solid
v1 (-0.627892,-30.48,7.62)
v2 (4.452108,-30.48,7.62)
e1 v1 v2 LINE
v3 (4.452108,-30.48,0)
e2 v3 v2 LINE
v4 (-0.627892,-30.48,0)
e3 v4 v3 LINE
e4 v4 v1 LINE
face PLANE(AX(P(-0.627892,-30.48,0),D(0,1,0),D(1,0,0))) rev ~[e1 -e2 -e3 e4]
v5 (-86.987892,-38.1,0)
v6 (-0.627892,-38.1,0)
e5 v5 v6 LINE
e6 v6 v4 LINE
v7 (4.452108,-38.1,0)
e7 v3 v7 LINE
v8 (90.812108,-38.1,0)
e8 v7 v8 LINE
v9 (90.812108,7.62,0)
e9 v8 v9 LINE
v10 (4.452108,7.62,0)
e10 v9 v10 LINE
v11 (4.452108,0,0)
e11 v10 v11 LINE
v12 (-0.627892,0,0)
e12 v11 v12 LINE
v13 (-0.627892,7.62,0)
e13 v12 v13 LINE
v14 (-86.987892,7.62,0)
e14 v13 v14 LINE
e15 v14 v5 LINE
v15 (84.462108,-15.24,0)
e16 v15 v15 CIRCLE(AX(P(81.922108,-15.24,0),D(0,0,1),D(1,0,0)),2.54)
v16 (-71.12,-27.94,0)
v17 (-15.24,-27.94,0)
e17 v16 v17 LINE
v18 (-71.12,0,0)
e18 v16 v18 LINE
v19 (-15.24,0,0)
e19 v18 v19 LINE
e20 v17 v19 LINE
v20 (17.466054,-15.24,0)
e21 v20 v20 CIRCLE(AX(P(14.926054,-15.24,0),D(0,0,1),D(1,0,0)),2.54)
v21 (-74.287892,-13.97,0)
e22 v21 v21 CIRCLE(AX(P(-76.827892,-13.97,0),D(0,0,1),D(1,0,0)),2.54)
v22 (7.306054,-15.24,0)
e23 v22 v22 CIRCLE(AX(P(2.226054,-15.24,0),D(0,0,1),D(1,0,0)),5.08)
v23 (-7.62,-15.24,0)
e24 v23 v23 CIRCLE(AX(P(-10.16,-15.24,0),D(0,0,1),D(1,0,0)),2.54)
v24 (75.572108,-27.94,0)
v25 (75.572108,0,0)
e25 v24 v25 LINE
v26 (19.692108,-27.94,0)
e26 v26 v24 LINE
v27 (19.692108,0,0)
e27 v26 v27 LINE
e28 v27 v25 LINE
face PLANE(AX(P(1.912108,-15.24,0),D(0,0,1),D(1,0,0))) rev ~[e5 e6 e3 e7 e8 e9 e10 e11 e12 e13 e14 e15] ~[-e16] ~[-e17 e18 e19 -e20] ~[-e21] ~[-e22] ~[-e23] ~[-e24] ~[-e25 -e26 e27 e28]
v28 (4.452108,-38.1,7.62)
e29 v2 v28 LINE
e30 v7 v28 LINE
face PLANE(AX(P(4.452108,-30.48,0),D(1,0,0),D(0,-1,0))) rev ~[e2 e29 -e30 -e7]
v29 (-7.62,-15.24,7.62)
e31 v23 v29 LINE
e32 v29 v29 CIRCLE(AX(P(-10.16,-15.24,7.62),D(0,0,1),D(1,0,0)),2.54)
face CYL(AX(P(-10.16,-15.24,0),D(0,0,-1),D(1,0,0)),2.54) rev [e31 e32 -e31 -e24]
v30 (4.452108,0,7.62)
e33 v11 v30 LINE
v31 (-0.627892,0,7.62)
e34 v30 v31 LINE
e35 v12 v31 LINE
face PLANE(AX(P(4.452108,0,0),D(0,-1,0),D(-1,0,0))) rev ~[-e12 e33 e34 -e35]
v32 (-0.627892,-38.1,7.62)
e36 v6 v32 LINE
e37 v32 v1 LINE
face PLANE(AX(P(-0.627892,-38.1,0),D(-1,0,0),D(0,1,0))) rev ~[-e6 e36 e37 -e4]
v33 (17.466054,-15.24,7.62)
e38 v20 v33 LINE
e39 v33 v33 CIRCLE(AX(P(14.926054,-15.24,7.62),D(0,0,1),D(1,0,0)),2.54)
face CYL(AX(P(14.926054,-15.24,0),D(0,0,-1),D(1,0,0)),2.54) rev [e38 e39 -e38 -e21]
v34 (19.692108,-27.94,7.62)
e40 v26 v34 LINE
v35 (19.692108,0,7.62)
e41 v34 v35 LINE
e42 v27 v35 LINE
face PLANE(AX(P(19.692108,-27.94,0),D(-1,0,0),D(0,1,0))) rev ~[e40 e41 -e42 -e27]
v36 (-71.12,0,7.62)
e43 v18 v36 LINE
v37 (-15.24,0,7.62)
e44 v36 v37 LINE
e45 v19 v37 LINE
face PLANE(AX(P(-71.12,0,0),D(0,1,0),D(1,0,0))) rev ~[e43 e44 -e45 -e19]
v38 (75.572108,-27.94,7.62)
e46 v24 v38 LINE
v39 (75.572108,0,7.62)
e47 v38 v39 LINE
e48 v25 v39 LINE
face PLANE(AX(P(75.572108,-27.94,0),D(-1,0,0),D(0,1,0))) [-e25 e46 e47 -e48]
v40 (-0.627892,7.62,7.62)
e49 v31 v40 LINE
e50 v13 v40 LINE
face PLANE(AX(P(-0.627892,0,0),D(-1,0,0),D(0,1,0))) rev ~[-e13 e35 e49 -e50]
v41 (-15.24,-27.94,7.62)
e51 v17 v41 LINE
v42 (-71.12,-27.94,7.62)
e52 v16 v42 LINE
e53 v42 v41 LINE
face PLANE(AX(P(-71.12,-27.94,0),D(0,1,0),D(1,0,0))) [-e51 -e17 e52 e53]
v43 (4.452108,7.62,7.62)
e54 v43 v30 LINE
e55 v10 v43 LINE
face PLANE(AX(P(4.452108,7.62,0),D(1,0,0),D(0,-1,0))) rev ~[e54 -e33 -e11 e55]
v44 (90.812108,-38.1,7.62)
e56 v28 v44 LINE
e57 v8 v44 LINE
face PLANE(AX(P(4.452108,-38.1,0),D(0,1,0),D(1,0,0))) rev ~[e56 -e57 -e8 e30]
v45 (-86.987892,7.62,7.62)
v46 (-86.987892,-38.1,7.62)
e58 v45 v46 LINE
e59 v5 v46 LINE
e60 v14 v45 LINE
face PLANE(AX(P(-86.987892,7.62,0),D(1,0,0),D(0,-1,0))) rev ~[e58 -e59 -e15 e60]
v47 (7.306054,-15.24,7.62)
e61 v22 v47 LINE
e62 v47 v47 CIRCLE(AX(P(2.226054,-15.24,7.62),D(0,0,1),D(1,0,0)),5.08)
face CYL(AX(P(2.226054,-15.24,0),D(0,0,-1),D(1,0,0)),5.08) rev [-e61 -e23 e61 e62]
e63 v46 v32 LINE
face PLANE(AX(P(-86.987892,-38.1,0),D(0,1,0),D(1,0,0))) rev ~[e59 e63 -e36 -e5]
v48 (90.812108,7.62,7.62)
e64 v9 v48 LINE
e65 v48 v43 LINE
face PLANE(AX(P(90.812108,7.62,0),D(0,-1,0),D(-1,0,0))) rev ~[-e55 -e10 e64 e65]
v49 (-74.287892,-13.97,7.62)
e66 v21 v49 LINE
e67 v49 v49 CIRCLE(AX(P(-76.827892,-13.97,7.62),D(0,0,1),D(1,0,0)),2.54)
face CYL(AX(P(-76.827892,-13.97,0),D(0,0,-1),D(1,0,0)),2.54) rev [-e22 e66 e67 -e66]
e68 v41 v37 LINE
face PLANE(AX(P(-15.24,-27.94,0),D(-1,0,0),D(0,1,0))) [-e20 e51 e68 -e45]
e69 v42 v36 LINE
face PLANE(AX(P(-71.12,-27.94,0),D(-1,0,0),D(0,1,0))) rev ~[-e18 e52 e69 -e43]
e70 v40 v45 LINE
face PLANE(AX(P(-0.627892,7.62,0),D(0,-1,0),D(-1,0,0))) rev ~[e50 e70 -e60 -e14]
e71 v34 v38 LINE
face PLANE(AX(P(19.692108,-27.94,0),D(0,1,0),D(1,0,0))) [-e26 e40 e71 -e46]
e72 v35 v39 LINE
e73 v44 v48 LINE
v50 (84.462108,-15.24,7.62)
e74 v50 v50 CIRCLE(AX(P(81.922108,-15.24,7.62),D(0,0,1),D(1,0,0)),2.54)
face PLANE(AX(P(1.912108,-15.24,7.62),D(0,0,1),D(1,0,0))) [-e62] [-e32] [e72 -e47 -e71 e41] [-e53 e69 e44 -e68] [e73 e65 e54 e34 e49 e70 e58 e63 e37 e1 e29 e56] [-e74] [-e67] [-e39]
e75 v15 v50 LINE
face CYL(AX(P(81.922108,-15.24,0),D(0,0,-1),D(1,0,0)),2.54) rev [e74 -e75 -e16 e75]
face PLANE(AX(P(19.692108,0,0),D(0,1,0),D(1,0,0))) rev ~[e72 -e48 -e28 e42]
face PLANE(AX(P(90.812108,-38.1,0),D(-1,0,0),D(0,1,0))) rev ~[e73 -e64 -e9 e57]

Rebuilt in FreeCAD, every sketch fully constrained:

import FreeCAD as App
import Part
import Sketcher

V = App.Vector
Q = App.Units.Quantity


def add_polygon(sketch, points):
    """Adds a closed chain of lines whose ends are joined by coincident constraints."""
    first, n = sketch.GeometryCount, len(points)
    for a, b in zip(points, points[1:] + points[:1]):
        sketch.addGeometry(Part.LineSegment(App.Vector(*a, 0), App.Vector(*b, 0)), False)
    for i in range(n):
        sketch.addConstraint(Sketcher.Constraint("Coincident", first + i, 2, first + (i + 1) % n, 1))

doc = App.newDocument("Part")
params = doc.addObject("Spreadsheet::Sheet", "Params")
for row, (alias, value) in enumerate([
    ("sketch1_diameter", "0.2 in"),
    ("sketch1_diameter2", "0.4 in"),
    ("sketch1_width", "3.4 in"),
    ("sketch1_width2", "0.2 in"),
    ("sketch1_width3", "2.2 in"),
    ("pad1_length", "0.3 in"),
], start=1):
    params.set(f"A{row}", alias)
    params.set(f"B{row}", "=" + value)
    params.setAlias(f"B{row}", alias)

body = doc.addObject("PartDesign::Body", "Body")

# Sketch on XY plane
sketch1 = body.newObject("Sketcher::SketchObject", "Sketch")
sketch1.AttachmentSupport = (doc.getObject("XY_Plane"), [""])
sketch1.MapMode = "FlatFace"
add_polygon(sketch1, [(-0.627892, 7.62), (-86.987892, 7.62), (-86.987892, -38.1), (-0.627892, -38.1), (-0.627892, -30.48), (4.452108, -30.48), (4.452108, -38.1), (90.812108, -38.1), (90.812108, 7.62), (4.452108, 7.62), (4.452108, 0), (-0.627892, 0)])  # lines 0-11
sketch1.addGeometry(Part.Circle(V(-76.827892, -13.97, 0), V(0, 0, 1), 2.54), False)  # 12
add_polygon(sketch1, [(-15.24, -27.94), (-71.12, -27.94), (-71.12, 0), (-15.24, 0)])  # lines 13-16
sketch1.addGeometry(Part.Circle(V(-10.16, -15.24, 0), V(0, 0, 1), 2.54), False)  # 17
sketch1.addGeometry(Part.Circle(V(2.226054, -15.24, 0), V(0, 0, 1), 5.08), False)  # 18
sketch1.addGeometry(Part.Circle(V(14.926054, -15.24, 0), V(0, 0, 1), 2.54), False)  # 19
add_polygon(sketch1, [(75.572108, -27.94), (19.692108, -27.94), (19.692108, 0), (75.572108, 0)])  # lines 20-23
sketch1.addGeometry(Part.Circle(V(81.922108, -15.24, 0), V(0, 0, 1), 2.54), False)  # 24
sketch1.addConstraint(Sketcher.Constraint("Horizontal", 0))
sketch1.addConstraint(Sketcher.Constraint("Vertical", 1))
sketch1.addConstraint(Sketcher.Constraint("Horizontal", 2))
sketch1.addConstraint(Sketcher.Constraint("Vertical", 3))
sketch1.addConstraint(Sketcher.Constraint("Horizontal", 4))
sketch1.addConstraint(Sketcher.Constraint("Vertical", 5))
sketch1.addConstraint(Sketcher.Constraint("Horizontal", 6))
sketch1.addConstraint(Sketcher.Constraint("Vertical", 7))
sketch1.addConstraint(Sketcher.Constraint("Horizontal", 8))
sketch1.addConstraint(Sketcher.Constraint("Vertical", 9))
sketch1.addConstraint(Sketcher.Constraint("Horizontal", 10))
sketch1.addConstraint(Sketcher.Constraint("Vertical", 11))
sketch1.addConstraint(Sketcher.Constraint("Horizontal", 13))
sketch1.addConstraint(Sketcher.Constraint("Vertical", 14))
sketch1.addConstraint(Sketcher.Constraint("Horizontal", 15))
sketch1.addConstraint(Sketcher.Constraint("Vertical", 16))
sketch1.addConstraint(Sketcher.Constraint("Horizontal", 20))
sketch1.addConstraint(Sketcher.Constraint("Vertical", 21))
sketch1.addConstraint(Sketcher.Constraint("Horizontal", 22))
sketch1.addConstraint(Sketcher.Constraint("Vertical", 23))
sketch1.addConstraint(Sketcher.Constraint("Equal", 12, 17))
sketch1.addConstraint(Sketcher.Constraint("Equal", 17, 19))
sketch1.addConstraint(Sketcher.Constraint("Equal", 19, 24))
sketch1.addConstraint(Sketcher.Constraint("PointOnObject", 9, 2, -1))
sketch1.addConstraint(Sketcher.Constraint("PointOnObject", 14, 2, -1))
sketch1.addConstraint(Sketcher.Constraint("PointOnObject", 21, 2, -1))
sketch1.addConstraint(Sketcher.Constraint("Horizontal", 17, 3, 18, 3))
sketch1.addConstraint(Sketcher.Constraint("Horizontal", 18, 3, 19, 3))
sketch1.addConstraint(Sketcher.Constraint("Horizontal", 19, 3, 24, 3))
sketch1.addConstraint(Sketcher.Constraint("Horizontal", 2, 2, 5, 2))
sketch1.addConstraint(Sketcher.Constraint("Horizontal", 0, 2, 7, 2))
sketch1.addConstraint(Sketcher.Constraint("Horizontal", 16, 2, 20, 2))
sketch1.addConstraint(Sketcher.Constraint("Vertical", 5, 2, 8, 2))
sketch1.addConstraint(Sketcher.Constraint("Vertical", 3, 2, 10, 2))
sketch1.addConstraint(Sketcher.Constraint("Equal", 2, 6))
sketch1.addConstraint(Sketcher.Constraint("Equal", 15, 20))
sketch1.addConstraint(Sketcher.Constraint("Equal", 5, 9))
sketch1.addConstraint(Sketcher.Constraint("Diameter", 12, Q("0.2 in")))
sketch1.addConstraint(Sketcher.Constraint("Diameter", 18, Q("0.4 in")))
sketch1.addConstraint(Sketcher.Constraint("DistanceX", 0, 2, 0, 1, Q("3.4 in")))
sketch1.addConstraint(Sketcher.Constraint("DistanceX", 4, 1, 4, 2, Q("0.2 in")))
sketch1.addConstraint(Sketcher.Constraint("DistanceX", 13, 2, 13, 1, Q("2.2 in")))
sketch1.addConstraint(Sketcher.Constraint("DistanceY", 1, 2, 1, 1, Q("1.8 in")))
sketch1.addConstraint(Sketcher.Constraint("DistanceY", 3, 1, 3, 2, Q("0.3 in")))
sketch1.addConstraint(Sketcher.Constraint("DistanceY", 14, 1, 14, 2, Q("1.1 in")))
sketch1.addConstraint(Sketcher.Constraint("DistanceX", 12, 3, 2, 2, Q("3 in")))
sketch1.addConstraint(Sketcher.Constraint("DistanceX", 17, 3, -1, 1, Q("0.4 in")))
sketch1.addConstraint(Sketcher.Constraint("DistanceY", 17, 3, -1, 1, Q("0.6 in")))
sketch1.addConstraint(Sketcher.Constraint("DistanceX", 13, 2, -1, 1, Q("2.8 in")))
sketch1.addConstraint(Sketcher.Constraint("DistanceX", 18, 3, 19, 3, Q("0.5 in")))
sketch1.addConstraint(Sketcher.Constraint("DistanceX", 4, 2, 20, 2, Q("0.6 in")))
sketch1.addConstraint(Sketcher.Constraint("DistanceY", 12, 3, -1, 1, Q("0.55 in")))
sketch1.addConstraint(Sketcher.Constraint("DistanceX", 12, 3, 24, 3, Q("6.25 in")))
sketch1.addConstraint(Sketcher.Constraint("DistanceX", -1, 1, 20, 2, Q("19.692108 mm")))
sketch1.addConstraint(Sketcher.Constraint("DistanceX", -1, 1, 18, 3, Q("2.226054 mm")))
sketch1.setExpression("Constraints[57]", "Params.sketch1_diameter")
sketch1.setExpression("Constraints[58]", "Params.sketch1_diameter2")
sketch1.setExpression("Constraints[59]", "Params.sketch1_width")
sketch1.setExpression("Constraints[60]", "Params.sketch1_width2")
sketch1.setExpression("Constraints[61]", "Params.sketch1_width3")
pad1 = body.newObject("PartDesign::Pad", "Pad")
pad1.Profile = sketch1
pad1.setExpression("Length", "Params.pad1_length")

doc.recompute()
